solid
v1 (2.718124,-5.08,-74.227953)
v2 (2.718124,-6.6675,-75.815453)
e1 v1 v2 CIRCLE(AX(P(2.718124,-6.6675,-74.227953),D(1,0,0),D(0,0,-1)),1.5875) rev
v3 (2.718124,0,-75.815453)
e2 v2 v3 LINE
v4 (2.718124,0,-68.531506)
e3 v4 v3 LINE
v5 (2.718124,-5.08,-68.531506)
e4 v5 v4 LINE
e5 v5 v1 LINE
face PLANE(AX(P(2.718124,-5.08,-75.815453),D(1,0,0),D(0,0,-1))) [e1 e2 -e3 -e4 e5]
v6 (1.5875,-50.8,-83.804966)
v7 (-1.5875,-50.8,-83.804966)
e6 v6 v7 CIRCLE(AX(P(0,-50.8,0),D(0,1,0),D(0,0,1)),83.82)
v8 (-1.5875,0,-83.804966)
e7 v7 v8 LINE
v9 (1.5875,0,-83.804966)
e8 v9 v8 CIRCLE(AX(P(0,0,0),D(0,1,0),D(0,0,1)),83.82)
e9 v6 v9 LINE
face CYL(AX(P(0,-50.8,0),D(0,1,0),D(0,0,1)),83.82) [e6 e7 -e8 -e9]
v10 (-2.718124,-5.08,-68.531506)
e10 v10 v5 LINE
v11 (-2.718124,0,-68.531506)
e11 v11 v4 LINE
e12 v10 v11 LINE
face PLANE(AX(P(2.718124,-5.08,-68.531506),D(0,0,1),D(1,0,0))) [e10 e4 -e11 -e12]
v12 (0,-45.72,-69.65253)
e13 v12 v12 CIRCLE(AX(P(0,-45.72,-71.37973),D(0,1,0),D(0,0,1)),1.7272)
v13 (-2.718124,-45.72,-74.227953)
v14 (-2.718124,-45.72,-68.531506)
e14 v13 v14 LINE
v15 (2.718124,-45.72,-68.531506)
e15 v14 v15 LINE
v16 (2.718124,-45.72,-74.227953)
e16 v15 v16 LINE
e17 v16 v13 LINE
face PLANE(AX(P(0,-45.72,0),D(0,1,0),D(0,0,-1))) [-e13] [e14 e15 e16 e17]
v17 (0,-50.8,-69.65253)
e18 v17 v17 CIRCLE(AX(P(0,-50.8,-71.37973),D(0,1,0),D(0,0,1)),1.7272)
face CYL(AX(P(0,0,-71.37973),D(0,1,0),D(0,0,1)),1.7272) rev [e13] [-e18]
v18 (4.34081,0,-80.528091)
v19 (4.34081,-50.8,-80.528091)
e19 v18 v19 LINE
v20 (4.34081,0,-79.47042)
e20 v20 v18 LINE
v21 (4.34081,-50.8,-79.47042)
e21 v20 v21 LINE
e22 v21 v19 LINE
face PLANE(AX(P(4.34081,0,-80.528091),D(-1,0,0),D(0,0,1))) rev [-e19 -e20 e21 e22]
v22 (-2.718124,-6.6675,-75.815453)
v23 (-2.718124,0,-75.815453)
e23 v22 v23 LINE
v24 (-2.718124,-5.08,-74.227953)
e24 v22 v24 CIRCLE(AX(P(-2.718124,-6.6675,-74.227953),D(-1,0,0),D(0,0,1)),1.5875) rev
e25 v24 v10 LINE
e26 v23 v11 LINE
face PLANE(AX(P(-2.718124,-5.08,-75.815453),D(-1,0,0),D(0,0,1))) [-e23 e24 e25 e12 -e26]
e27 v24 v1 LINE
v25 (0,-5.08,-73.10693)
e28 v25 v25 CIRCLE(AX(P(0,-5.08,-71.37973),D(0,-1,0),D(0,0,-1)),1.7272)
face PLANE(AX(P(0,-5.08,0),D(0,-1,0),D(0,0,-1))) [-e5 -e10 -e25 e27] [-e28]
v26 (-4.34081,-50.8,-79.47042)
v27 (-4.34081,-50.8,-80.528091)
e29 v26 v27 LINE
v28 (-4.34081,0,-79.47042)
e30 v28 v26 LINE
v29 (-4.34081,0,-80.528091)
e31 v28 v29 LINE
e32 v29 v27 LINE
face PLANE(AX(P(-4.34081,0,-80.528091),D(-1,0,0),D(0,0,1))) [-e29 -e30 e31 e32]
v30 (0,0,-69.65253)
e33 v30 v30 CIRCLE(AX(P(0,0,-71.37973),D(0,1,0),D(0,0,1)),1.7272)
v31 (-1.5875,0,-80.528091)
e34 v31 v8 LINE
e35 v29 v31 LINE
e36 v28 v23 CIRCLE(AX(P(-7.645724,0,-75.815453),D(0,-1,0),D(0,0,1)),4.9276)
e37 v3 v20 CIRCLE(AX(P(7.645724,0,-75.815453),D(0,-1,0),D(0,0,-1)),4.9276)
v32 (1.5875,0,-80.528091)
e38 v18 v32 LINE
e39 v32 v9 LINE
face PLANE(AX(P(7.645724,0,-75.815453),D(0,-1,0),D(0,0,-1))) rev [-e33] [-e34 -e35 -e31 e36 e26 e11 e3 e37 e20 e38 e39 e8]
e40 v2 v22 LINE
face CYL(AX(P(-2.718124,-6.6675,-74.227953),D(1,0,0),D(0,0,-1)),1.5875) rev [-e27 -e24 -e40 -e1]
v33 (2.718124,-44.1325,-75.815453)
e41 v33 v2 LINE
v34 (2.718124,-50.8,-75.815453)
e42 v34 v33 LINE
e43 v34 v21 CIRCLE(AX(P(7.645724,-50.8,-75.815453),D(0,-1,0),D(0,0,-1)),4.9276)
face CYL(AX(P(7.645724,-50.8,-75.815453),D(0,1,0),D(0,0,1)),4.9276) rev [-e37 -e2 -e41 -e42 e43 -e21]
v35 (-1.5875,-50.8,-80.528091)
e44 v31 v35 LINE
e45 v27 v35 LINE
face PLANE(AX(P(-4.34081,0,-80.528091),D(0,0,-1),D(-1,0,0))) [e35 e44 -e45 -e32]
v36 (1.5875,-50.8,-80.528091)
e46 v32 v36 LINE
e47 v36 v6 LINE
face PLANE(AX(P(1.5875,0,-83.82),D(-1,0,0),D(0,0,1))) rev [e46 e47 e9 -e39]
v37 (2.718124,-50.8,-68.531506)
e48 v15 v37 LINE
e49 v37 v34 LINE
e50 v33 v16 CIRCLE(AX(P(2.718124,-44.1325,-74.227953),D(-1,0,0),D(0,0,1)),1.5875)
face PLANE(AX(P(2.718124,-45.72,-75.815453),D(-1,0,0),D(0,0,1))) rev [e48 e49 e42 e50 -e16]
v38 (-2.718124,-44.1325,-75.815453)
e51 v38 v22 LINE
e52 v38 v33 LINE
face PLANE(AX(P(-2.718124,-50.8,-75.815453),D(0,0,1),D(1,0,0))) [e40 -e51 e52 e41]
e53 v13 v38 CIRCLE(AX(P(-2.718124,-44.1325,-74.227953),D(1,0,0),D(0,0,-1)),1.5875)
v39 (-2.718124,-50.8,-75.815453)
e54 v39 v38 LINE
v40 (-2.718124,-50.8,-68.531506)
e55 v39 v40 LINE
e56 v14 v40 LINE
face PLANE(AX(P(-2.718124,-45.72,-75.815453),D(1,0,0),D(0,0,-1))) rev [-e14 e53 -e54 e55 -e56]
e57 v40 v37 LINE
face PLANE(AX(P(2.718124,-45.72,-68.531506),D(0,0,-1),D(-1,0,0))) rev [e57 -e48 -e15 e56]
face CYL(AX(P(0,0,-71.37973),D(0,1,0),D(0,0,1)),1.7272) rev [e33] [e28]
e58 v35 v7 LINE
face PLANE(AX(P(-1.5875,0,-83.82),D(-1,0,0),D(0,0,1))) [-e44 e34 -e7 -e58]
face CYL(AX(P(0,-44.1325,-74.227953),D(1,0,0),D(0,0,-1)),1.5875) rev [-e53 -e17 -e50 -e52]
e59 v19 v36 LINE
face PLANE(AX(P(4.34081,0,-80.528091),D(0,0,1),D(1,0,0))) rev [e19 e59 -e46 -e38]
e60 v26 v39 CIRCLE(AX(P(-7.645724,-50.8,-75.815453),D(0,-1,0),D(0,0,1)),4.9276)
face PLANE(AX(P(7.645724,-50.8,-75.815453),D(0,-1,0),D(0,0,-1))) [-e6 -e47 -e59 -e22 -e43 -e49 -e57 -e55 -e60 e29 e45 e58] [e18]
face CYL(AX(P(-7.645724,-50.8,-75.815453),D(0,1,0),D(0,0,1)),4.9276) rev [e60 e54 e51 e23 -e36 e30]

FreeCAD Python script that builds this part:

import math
import FreeCAD as App
import Part
import Sketcher

V = App.Vector
Q = App.Units.Quantity


def edges_at(feature, points):
    """Names of the edges that pass closest to the given points."""
    edges = feature.Shape.Edges
    near = lambda p: min(range(len(edges)), key=lambda i: edges[i].distToShape(Part.Vertex(*p))[0])
    return sorted({f"Edge{near(p) + 1}" for p in points})

doc = App.newDocument("Part")
body = doc.addObject("PartDesign::Body", "Body")

# Sketch on XZ plane
sketch1 = body.newObject("Sketcher::SketchObject", "Sketch")
sketch1.AttachmentSupport = (doc.getObject("XZ_Plane"), [""])
sketch1.MapMode = "FlatFace"
sketch1.addGeometry(Part.LineSegment(V(-2.7, -75.8, 0), V(2.7, -75.8, 0)), False)
sketch1.addGeometry(Part.ArcOfCircle(Part.Circle(V(7.6, -75.8, 0), V(0, 0, 1), 4.9), math.radians(180), math.radians(276)), False)
sketch1.addGeometry(Part.LineSegment(V(8.1, -80.7, 0), V(8.1, -83.4, 0)), False)
sketch1.addGeometry(Part.ArcOfCircle(Part.Circle(V(0, 0, 0), V(0, 0, 1), 83.8), math.radians(-95.57), math.radians(-84.43)), False)
sketch1.addGeometry(Part.LineSegment(V(-8.1, -83.4, 0), V(-8.1, -80.7, 0)), False)
sketch1.addGeometry(Part.ArcOfCircle(Part.Circle(V(-7.6, -75.8, 0), V(0, 0, 1), 4.9), math.radians(-96), math.radians(0)), False)
sketch1.addConstraint(Sketcher.Constraint("Coincident", 0, 2, 1, 1))
sketch1.addConstraint(Sketcher.Constraint("Coincident", 1, 2, 2, 1))
sketch1.addConstraint(Sketcher.Constraint("Coincident", 2, 2, 3, 2))
sketch1.addConstraint(Sketcher.Constraint("Coincident", 3, 1, 4, 1))
sketch1.addConstraint(Sketcher.Constraint("Coincident", 4, 2, 5, 1))
sketch1.addConstraint(Sketcher.Constraint("Coincident", 5, 2, 0, 1))
sketch1.addConstraint(Sketcher.Constraint("Horizontal", 0))
sketch1.addConstraint(Sketcher.Constraint("Vertical", 2))
sketch1.addConstraint(Sketcher.Constraint("Vertical", 4))
sketch1.addConstraint(Sketcher.Constraint("Coincident", 3, 3, -1, 1))
sketch1.addConstraint(Sketcher.Constraint("Equal", 1, 5))
sketch1.addConstraint(Sketcher.Constraint("Symmetric", 1, 3, 5, 3, -2))
sketch1.addConstraint(Sketcher.Constraint("Horizontal", 5, 3, 0, 2))
sketch1.addConstraint(Sketcher.Constraint("Horizontal", 2, 2, 3, 1))
sketch1.addConstraint(Sketcher.Constraint("Radius", 3, Q("3.3 in")))
sketch1.addConstraint(Sketcher.Constraint("Radius", 1, Q("0.194 in")))
sketch1.addConstraint(Sketcher.Constraint("DistanceX", 0, 1, 0, 2, 5.436249))
sketch1.addConstraint(Sketcher.Constraint("DistanceY", 2, 2, -1, 1, 83.4238))
sketch1.addConstraint(Sketcher.Constraint("DistanceY", 2, 2, 2, 1, 2.705614))
pad1 = body.newObject("PartDesign::Pad", "Pad")
pad1.Profile = sketch1
pad1.Length = Q("2 in")

# Sketch on XZ plane
sketch2 = body.newObject("Sketcher::SketchObject", "Sketch001")
sketch2.AttachmentSupport = (doc.getObject("XZ_Plane"), [""])
sketch2.MapMode = "FlatFace"
sketch2.addGeometry(Part.LineSegment(V(37.4, -86.1, 0), V(-9.7, -86.1, 0)), False)
sketch2.addGeometry(Part.LineSegment(V(-9.7, -86.1, 0), V(-9.7, -76.8, 0)), False)
sketch2.addGeometry(Part.LineSegment(V(-9.7, -76.8, 0), V(-4.3, -76.8, 0)), False)
sketch2.addGeometry(Part.LineSegment(V(-4.3, -76.8, 0), V(-4.3, -80.5, 0)), False)
sketch2.addGeometry(Part.LineSegment(V(-4.3, -80.5, 0), V(-1.6, -80.5, 0)), False)
sketch2.addGeometry(Part.LineSegment(V(-1.6, -80.5, 0), V(-1.6, -83.8, 0)), False)
sketch2.addGeometry(Part.LineSegment(V(-1.6, -83.8, 0), V(40.6, -83.8, 0)), False)
sketch2.addGeometry(Part.LineSegment(V(40.6, -83.8, 0), V(88, -149.7, 0)), False)
sketch2.addGeometry(Part.LineSegment(V(88, -149.7, 0), V(84.8, -152, 0)), False)
sketch2.addGeometry(Part.LineSegment(V(84.8, -152, 0), V(37.4, -86.1, 0)), False)
sketch2.addConstraint(Sketcher.Constraint("Coincident", 0, 2, 1, 1))
sketch2.addConstraint(Sketcher.Constraint("Coincident", 1, 2, 2, 1))
sketch2.addConstraint(Sketcher.Constraint("Coincident", 2, 2, 3, 1))
sketch2.addConstraint(Sketcher.Constraint("Coincident", 3, 2, 4, 1))
sketch2.addConstraint(Sketcher.Constraint("Coincident", 4, 2, 5, 1))
sketch2.addConstraint(Sketcher.Constraint("Coincident", 5, 2, 6, 1))
sketch2.addConstraint(Sketcher.Constraint("Coincident", 6, 2, 7, 1))
sketch2.addConstraint(Sketcher.Constraint("Coincident", 7, 2, 8, 1))
sketch2.addConstraint(Sketcher.Constraint("Coincident", 8, 2, 9, 1))
sketch2.addConstraint(Sketcher.Constraint("Coincident", 9, 2, 0, 1))
sketch2.addConstraint(Sketcher.Constraint("Horizontal", 0))
sketch2.addConstraint(Sketcher.Constraint("Vertical", 1))
sketch2.addConstraint(Sketcher.Constraint("Horizontal", 2))
sketch2.addConstraint(Sketcher.Constraint("Vertical", 3))
sketch2.addConstraint(Sketcher.Constraint("Horizontal", 4))
sketch2.addConstraint(Sketcher.Constraint("Vertical", 5))
sketch2.addConstraint(Sketcher.Constraint("Horizontal", 6))
sketch2.addConstraint(Sketcher.Constraint("Perpendicular", 7, 8))
sketch2.addConstraint(Sketcher.Constraint("Perpendicular", 8, 9))
sketch2.addConstraint(Sketcher.Constraint("Equal", 7, 9))
sketch2.addConstraint(Sketcher.Constraint("DistanceY", 5, 2, -1, 1, Q("3.3 in")))
sketch2.addConstraint(Sketcher.Constraint("DistanceX", 4, 2, -1, 1, Q("0.0625 in")))
sketch2.addConstraint(Sketcher.Constraint("DistanceX", 8, 2, 7, 2, Q("0.125 in")))
sketch2.addConstraint(Sketcher.Constraint("DistanceX", 2, 1, 2, 2, 5.39881))
sketch2.addConstraint(Sketcher.Constraint("DistanceX", 4, 1, 4, 2, 2.75331))
sketch2.addConstraint(Sketcher.Constraint("DistanceY", 5, 2, 5, 1, 3.291909))
sketch2.addConstraint(Sketcher.Constraint("DistanceY", 7, 2, 4, 2, 69.183699))
sketch2.addConstraint(Sketcher.Constraint("DistanceX", 0, 2, 0, 1, 47.151846))
sketch2.addConstraint(Sketcher.Constraint("DistanceY", 1, 1, 1, 2, 9.336343))
sketch2.addConstraint(Sketcher.Constraint("DistanceY", 3, 2, 3, 1, 3.760054))
pocket1 = body.newObject("PartDesign::Pocket", "Pocket")
pocket1.Profile = sketch2
pocket1.Type = "ThroughAll"
pocket1.Reversed = True
doc.recompute()

mirrored = body.newObject("PartDesign::Mirrored", "Mirrored")
mirrored.Originals = [pocket1]
mirrored.MirrorPlane = (doc.getObject("YZ_Plane"), [""])
body.Tip = mirrored

# Sketch on XZ plane
sketch3 = body.newObject("Sketcher::SketchObject", "Sketch002")
sketch3.AttachmentSupport = (doc.getObject("XZ_Plane"), [""])
sketch3.MapMode = "FlatFace"
sketch3.addGeometry(Part.LineSegment(V(-3, -76, 0), V(-3, -69, 0)), False)
sketch3.addGeometry(Part.LineSegment(V(-3, -69, 0), V(3, -69, 0)), False)
sketch3.addGeometry(Part.LineSegment(V(3, -69, 0), V(3, -76, 0)), False)
sketch3.addGeometry(Part.LineSegment(V(3, -76, 0), V(-3, -76, 0)), False)
sketch3.addConstraint(Sketcher.Constraint("Coincident", 0, 2, 1, 1))
sketch3.addConstraint(Sketcher.Constraint("Coincident", 1, 2, 2, 1))
sketch3.addConstraint(Sketcher.Constraint("Coincident", 2, 2, 3, 1))
sketch3.addConstraint(Sketcher.Constraint("Coincident", 3, 2, 0, 1))
sketch3.addConstraint(Sketcher.Constraint("Vertical", 0))
sketch3.addConstraint(Sketcher.Constraint("Horizontal", 1))
sketch3.addConstraint(Sketcher.Constraint("Vertical", 2))
sketch3.addConstraint(Sketcher.Constraint("Horizontal", 3))
sketch3.addConstraint(Sketcher.Constraint("DistanceX", 1, 1, 1, 2, 5.436249))
sketch3.addConstraint(Sketcher.Constraint("DistanceY", 0, 1, 0, 2, 7.283947))
sketch3.addConstraint(Sketcher.Constraint("DistanceX", 0, 2, -1, 1, 2.718124))
sketch3.addConstraint(Sketcher.Constraint("DistanceY", 0, 2, -1, 1, 68.531506))
pad2 = body.newObject("PartDesign::Pad", "Pad001")
pad2.Profile = sketch3
pad2.Length = Q("0.2 in")
doc.recompute()

fillet = body.newObject("PartDesign::Fillet", "Fillet")
fillet.Base = (pad2, edges_at(pad2, [(0, -5.08, -75.815)]))
fillet.Radius = Q("0.0625 in")
doc.recompute()

datumplane = body.newObject("PartDesign::Plane", "DatumPlane")
datumplane.AttachmentSupport = (doc.getObject("XZ_Plane"), [""])
datumplane.MapMode = "FlatFace"
datumplane.AttachmentOffset = App.Placement(V(0, 0, 1 * 25.4), App.Rotation())
mirrored2 = body.newObject("PartDesign::Mirrored", "Mirrored001")
mirrored2.Originals = [pad2]
mirrored2.MirrorPlane = (datumplane, [""])
body.Tip = mirrored2
doc.recompute()

fillet2 = body.newObject("PartDesign::Fillet", "Fillet001")
fillet2.Base = (mirrored2, edges_at(mirrored2, [(0, -45.72, -75.815)]))
fillet2.Radius = Q("0.0625 in")

# Sketch on XZ plane
sketch4 = body.newObject("Sketcher::SketchObject", "Sketch003")
sketch4.AttachmentSupport = (doc.getObject("XZ_Plane"), [""])
sketch4.MapMode = "FlatFace"
sketch4.addGeometry(Part.Circle(V(0, -71.4, 0), V(0, 0, 1), 1.7), False)
sketch4.addConstraint(Sketcher.Constraint("PointOnObject", 0, 3, -2))
sketch4.addConstraint(Sketcher.Constraint("Diameter", 0, Q("0.136 in")))
sketch4.addConstraint(Sketcher.Constraint("DistanceY", 0, 3, -1, 1, 71.37973))
doc.recompute()
hole = body.newObject("PartDesign::Hole", "Hole")
hole.Profile = sketch4
hole.ThreadType = "None"
hole.Diameter = Q("0.136 in")
hole.DepthType = "ThroughAll"
hole.Reversed = True

doc.recompute()
